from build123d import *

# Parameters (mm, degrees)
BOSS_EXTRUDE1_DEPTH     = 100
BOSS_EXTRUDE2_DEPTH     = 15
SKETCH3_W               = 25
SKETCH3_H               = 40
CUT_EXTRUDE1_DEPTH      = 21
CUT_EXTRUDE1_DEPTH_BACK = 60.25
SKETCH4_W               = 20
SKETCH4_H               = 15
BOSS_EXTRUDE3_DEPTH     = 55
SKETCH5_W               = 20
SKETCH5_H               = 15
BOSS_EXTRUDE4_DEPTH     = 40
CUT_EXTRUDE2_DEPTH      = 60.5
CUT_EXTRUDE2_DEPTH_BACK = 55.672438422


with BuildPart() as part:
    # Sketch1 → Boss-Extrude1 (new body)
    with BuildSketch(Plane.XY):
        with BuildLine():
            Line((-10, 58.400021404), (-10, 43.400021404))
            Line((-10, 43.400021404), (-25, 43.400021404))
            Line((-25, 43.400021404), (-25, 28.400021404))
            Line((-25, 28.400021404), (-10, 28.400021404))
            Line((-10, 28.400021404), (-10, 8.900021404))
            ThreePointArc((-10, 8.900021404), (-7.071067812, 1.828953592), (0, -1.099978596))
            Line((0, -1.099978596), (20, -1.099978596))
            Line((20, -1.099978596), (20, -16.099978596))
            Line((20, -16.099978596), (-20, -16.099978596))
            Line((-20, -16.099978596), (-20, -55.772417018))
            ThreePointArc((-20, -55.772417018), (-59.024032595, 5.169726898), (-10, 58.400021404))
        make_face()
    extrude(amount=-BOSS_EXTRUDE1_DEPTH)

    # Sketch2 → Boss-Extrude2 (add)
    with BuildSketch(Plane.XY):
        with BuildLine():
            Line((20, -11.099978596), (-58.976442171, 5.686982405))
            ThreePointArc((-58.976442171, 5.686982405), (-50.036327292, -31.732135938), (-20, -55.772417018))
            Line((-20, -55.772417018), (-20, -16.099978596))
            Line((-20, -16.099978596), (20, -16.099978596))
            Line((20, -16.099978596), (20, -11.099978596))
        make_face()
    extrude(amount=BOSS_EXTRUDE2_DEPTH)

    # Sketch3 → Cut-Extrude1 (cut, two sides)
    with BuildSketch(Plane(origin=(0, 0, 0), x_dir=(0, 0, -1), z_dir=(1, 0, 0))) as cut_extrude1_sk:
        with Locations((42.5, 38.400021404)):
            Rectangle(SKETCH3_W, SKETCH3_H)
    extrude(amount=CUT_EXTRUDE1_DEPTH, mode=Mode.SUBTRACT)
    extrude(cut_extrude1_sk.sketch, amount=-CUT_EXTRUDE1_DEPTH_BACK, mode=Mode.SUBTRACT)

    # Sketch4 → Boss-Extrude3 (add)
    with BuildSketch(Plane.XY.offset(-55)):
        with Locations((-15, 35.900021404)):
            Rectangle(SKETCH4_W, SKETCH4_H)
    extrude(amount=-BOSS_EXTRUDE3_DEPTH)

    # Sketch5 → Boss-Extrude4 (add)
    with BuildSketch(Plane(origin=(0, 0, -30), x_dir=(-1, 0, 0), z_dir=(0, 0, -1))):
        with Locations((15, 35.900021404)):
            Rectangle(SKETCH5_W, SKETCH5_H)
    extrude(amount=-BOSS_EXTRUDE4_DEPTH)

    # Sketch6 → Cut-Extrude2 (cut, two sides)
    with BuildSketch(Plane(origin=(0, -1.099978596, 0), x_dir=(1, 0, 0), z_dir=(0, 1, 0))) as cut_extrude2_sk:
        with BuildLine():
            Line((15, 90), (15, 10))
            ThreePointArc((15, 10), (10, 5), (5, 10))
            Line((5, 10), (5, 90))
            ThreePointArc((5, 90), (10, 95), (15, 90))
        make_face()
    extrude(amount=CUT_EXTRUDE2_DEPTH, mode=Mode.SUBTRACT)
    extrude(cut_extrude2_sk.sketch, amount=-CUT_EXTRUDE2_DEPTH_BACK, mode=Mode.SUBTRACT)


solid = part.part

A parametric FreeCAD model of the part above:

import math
import FreeCAD as App
import Part
import Sketcher
Q = App.Units.Quantity


def add_polygon(sketch, points):
    """Adds a closed chain of lines whose ends are joined by coincident constraints."""
    first, n = sketch.GeometryCount, len(points)
    for a, b in zip(points, points[1:] + points[:1]):
        sketch.addGeometry(Part.LineSegment(App.Vector(*a, 0), App.Vector(*b, 0)), False)
    for i in range(n):
        sketch.addConstraint(Sketcher.Constraint("Coincident", first + i, 2, first + (i + 1) % n, 1))

doc = App.newDocument("Part")
body = doc.addObject("PartDesign::Body", "Body")

# Sketch on XY plane
sketch1 = doc.addObject("Sketcher::SketchObject", "Sketch")
body.addObject(sketch1)
sketch1.AttachmentSupport = (doc.XY_Plane, [""])
sketch1.MapMode = "FlatFace"
sketch1.addGeometry([
    Part.LineSegment(App.Vector(-10, 43, 0), App.Vector(-10, 58, 0)),  # 0
    Part.ArcOfCircle(Part.Circle(App.Vector(0, 0, 0), App.Vector(0, 0, 1), 59), math.radians(100), math.radians(250)),  # 1
    Part.LineSegment(App.Vector(-20, -56, 0), App.Vector(-20, -16, 0)),  # 2
    Part.LineSegment(App.Vector(-20, -16, 0), App.Vector(20, -16, 0)),  # 3
    Part.LineSegment(App.Vector(20, -16, 0), App.Vector(20, -1, 0)),  # 4
    Part.LineSegment(App.Vector(20, -1, 0), App.Vector(0, -1, 0)),  # 5
    Part.ArcOfCircle(Part.Circle(App.Vector(0, 9, 0), App.Vector(0, 0, 1), 10), math.radians(180), math.radians(270)),  # 6
    Part.LineSegment(App.Vector(-10, 9, 0), App.Vector(-10, 28, 0)),  # 7
    Part.LineSegment(App.Vector(-10, 28, 0), App.Vector(-25, 28, 0)),  # 8
    Part.LineSegment(App.Vector(-25, 28, 0), App.Vector(-25, 43, 0)),  # 9
    Part.LineSegment(App.Vector(-25, 43, 0), App.Vector(-10, 43, 0)),  # 10
], False)
sketch1.addConstraint([
    Sketcher.Constraint("Coincident", 0, 2, 1, 1),
    Sketcher.Constraint("Coincident", 1, 2, 2, 1),
    Sketcher.Constraint("Coincident", 2, 2, 3, 1),
    Sketcher.Constraint("Coincident", 3, 2, 4, 1),
    Sketcher.Constraint("Coincident", 4, 2, 5, 1),
    Sketcher.Constraint("Tangent", 5, 2, 6, 2),
    Sketcher.Constraint("Tangent", 6, 1, 7, 1),
    Sketcher.Constraint("Coincident", 7, 2, 8, 1),
    Sketcher.Constraint("Coincident", 8, 2, 9, 1),
    Sketcher.Constraint("Coincident", 9, 2, 10, 1),
    Sketcher.Constraint("Coincident", 10, 2, 0, 1),
    Sketcher.Constraint("Vertical", 0),
    Sketcher.Constraint("Vertical", 2),
    Sketcher.Constraint("Horizontal", 3),
    Sketcher.Constraint("Vertical", 4),
    Sketcher.Constraint("Horizontal", 5),
    Sketcher.Constraint("Vertical", 7),
    Sketcher.Constraint("Horizontal", 8),
    Sketcher.Constraint("Vertical", 9),
    Sketcher.Constraint("Horizontal", 10),
    Sketcher.Constraint("Coincident", 1, 3, -1, 1),
    Sketcher.Constraint("PointOnObject", 6, 3, -2),
    Sketcher.Constraint("Vertical", 0, 2, 6, 1),
    Sketcher.Constraint("Equal", 10, 0),
    Sketcher.Constraint("Equal", 0, 4),
    Sketcher.Constraint("Equal", 4, 9),
    Sketcher.Constraint("Radius", 6, 10.0),
    Sketcher.Constraint("DistanceX", 3, 1, 3, 2, 40.0),
    Sketcher.Constraint("DistanceX", 5, 2, 5, 1, 20.0),
    Sketcher.Constraint("DistanceX", 8, 2, 8, 1, 15.0),
    Sketcher.Constraint("Radius", 1, 59.25),
    Sketcher.Constraint("DistanceY", 7, 1, 7, 2, 19.5),
])
pad1 = doc.addObject("PartDesign::Pad", "Pad")
body.addObject(pad1)
pad1.Profile = sketch1
pad1.Length = 100
pad1.Reversed = True

# Sketch on XY plane
sketch2 = doc.addObject("Sketcher::SketchObject", "Sketch001")
body.addObject(sketch2)
sketch2.AttachmentSupport = (doc.XY_Plane, [""])
sketch2.MapMode = "FlatFace"
sketch2.addGeometry([
    Part.LineSegment(App.Vector(20, -11, 0), App.Vector(-59, 6, 0)),  # 0
    Part.ArcOfCircle(Part.Circle(App.Vector(0, 0, 0), App.Vector(0, 0, 1), 59), math.radians(174), math.radians(250)),  # 1
    Part.LineSegment(App.Vector(-20, -56, 0), App.Vector(-20, -16, 0)),  # 2
    Part.LineSegment(App.Vector(-20, -16, 0), App.Vector(20, -16, 0)),  # 3
    Part.LineSegment(App.Vector(20, -16, 0), App.Vector(20, -11, 0)),  # 4
], False)
sketch2.addConstraint([
    Sketcher.Constraint("Coincident", 0, 2, 1, 1),
    Sketcher.Constraint("Coincident", 1, 2, 2, 1),
    Sketcher.Constraint("Coincident", 2, 2, 3, 1),
    Sketcher.Constraint("Coincident", 3, 2, 4, 1),
    Sketcher.Constraint("Coincident", 4, 2, 0, 1),
    Sketcher.Constraint("Vertical", 2),
    Sketcher.Constraint("Horizontal", 3),
    Sketcher.Constraint("Vertical", 4),
    Sketcher.Constraint("Coincident", 1, 3, -1, 1),
    Sketcher.Constraint("DistanceX", 3, 1, 3, 2, 40.0),
    Sketcher.Constraint("DistanceY", 4, 1, 4, 2, 5.0),
    Sketcher.Constraint("Angle", 0, Q("168 deg")),
    Sketcher.Constraint("Radius", 1, 59.25),
    Sketcher.Constraint("DistanceX", 1, 2, -1, 1, 20.0),
    Sketcher.Constraint("DistanceY", 2, 1, 2, 2, 39.672438),
])
pad2 = doc.addObject("PartDesign::Pad", "Pad001")
body.addObject(pad2)
pad2.Profile = sketch2
pad2.Length = 15

# Sketch on YZ plane
sketch3 = doc.addObject("Sketcher::SketchObject", "Sketch002")
body.addObject(sketch3)
sketch3.AttachmentSupport = (doc.YZ_Plane, [""])
sketch3.MapMode = "FlatFace"
add_polygon(sketch3, [(58, -30), (18, -30), (18, -55), (58, -55)])  # lines 0-3
sketch3.addConstraint([
    Sketcher.Constraint("Horizontal", 0),
    Sketcher.Constraint("Vertical", 1),
    Sketcher.Constraint("Horizontal", 2),
    Sketcher.Constraint("Vertical", 3),
    Sketcher.Constraint("DistanceX", 0, 2, 0, 1, 40.0),
    Sketcher.Constraint("DistanceY", 1, 2, 1, 1, 25.0),
    Sketcher.Constraint("DistanceY", 0, 2, -1, 1, 30.0),
    Sketcher.Constraint("DistanceX", -1, 1, 0, 2, 18.400021),
])
pocket1 = doc.addObject("PartDesign::Pocket", "Pocket")
body.addObject(pocket1)
pocket1.Profile = sketch3
pocket1.Type = "ThroughAll"
pocket1.Midplane = True

# Sketch on XY plane
sketch4 = doc.addObject("Sketcher::SketchObject", "Sketch003")
body.addObject(sketch4)
sketch4.AttachmentSupport = (doc.XY_Plane, [""])
sketch4.MapMode = "FlatFace"
sketch4.AttachmentOffset = App.Placement(App.Vector(0, 0, -55), App.Rotation())
add_polygon(sketch4, [(-25, 43), (-25, 28), (-5, 28), (-5, 43)])  # lines 0-3
sketch4.addConstraint([
    Sketcher.Constraint("Vertical", 0),
    Sketcher.Constraint("Horizontal", 1),
    Sketcher.Constraint("Vertical", 2),
    Sketcher.Constraint("Horizontal", 3),
    Sketcher.Constraint("DistanceX", 1, 1, 1, 2, 20.0),
    Sketcher.Constraint("DistanceY", 0, 2, 0, 1, 15.0),
    Sketcher.Constraint("DistanceX", 0, 2, -1, 1, 25.0),
    Sketcher.Constraint("DistanceY", -1, 1, 0, 2, 28.400021),
])
pad3 = doc.addObject("PartDesign::Pad", "Pad002")
body.addObject(pad3)
pad3.Profile = sketch4
pad3.Length = 55
pad3.Reversed = True

# Sketch on XY plane
sketch5 = doc.addObject("Sketcher::SketchObject", "Sketch004")
body.addObject(sketch5)
sketch5.AttachmentSupport = (doc.XY_Plane, [""])
sketch5.MapMode = "FlatFace"
sketch5.AttachmentOffset = App.Placement(App.Vector(0, 0, -30), App.Rotation())
add_polygon(sketch5, [(-5, 43), (-5, 28), (-25, 28), (-25, 43)])  # lines 0-3
sketch5.addConstraint([
    Sketcher.Constraint("Vertical", 0),
    Sketcher.Constraint("Horizontal", 1),
    Sketcher.Constraint("Vertical", 2),
    Sketcher.Constraint("Horizontal", 3),
    Sketcher.Constraint("DistanceX", 1, 2, 1, 1, 20.0),
    Sketcher.Constraint("DistanceY", 0, 2, 0, 1, 15.0),
    Sketcher.Constraint("DistanceX", 0, 2, -1, 1, 5.0),
    Sketcher.Constraint("DistanceY", -1, 1, 0, 2, 28.400021),
])
pad4 = doc.addObject("PartDesign::Pad", "Pad003")
body.addObject(pad4)
pad4.Profile = sketch5
pad4.Length = 40

# Sketch on XZ plane
sketch6 = doc.addObject("Sketcher::SketchObject", "Sketch005")
body.addObject(sketch6)
sketch6.AttachmentSupport = (doc.XZ_Plane, [""])
sketch6.MapMode = "FlatFace"
sketch6.AttachmentOffset = App.Placement(App.Vector(0, 0, 1.099979), App.Rotation())
sketch6.addGeometry([
    Part.LineSegment(App.Vector(15, -10, 0), App.Vector(15, -90, 0)),
    Part.ArcOfCircle(Part.Circle(App.Vector(10, -90, 0), App.Vector(0, 0, 1), 5), math.radians(180), math.radians(360)),
    Part.LineSegment(App.Vector(5, -90, 0), App.Vector(5, -10, 0)),
    Part.ArcOfCircle(Part.Circle(App.Vector(10, -10, 0), App.Vector(0, 0, 1), 5), math.radians(0), math.radians(180)),
], False)
sketch6.addConstraint([
    Sketcher.Constraint("Tangent", 0, 2, 1, 2),
    Sketcher.Constraint("Tangent", 1, 1, 2, 1),
    Sketcher.Constraint("Tangent", 2, 2, 3, 2),
    Sketcher.Constraint("Tangent", 3, 1, 0, 1),
    Sketcher.Constraint("Vertical", 0),
    Sketcher.Constraint("Vertical", 2),
    Sketcher.Constraint("Radius", 1, 5.0),
    Sketcher.Constraint("DistanceY", 0, 2, 0, 1, 80.0),
    Sketcher.Constraint("DistanceX", -1, 1, 1, 3, 10.0),
    Sketcher.Constraint("DistanceY", 1, 3, -1, 1, 90.0),
])
pocket2 = doc.addObject("PartDesign::Pocket", "Pocket001")
body.addObject(pocket2)
pocket2.Profile = sketch6
pocket2.Type = "ThroughAll"
pocket2.Midplane = True

doc.recompute()
